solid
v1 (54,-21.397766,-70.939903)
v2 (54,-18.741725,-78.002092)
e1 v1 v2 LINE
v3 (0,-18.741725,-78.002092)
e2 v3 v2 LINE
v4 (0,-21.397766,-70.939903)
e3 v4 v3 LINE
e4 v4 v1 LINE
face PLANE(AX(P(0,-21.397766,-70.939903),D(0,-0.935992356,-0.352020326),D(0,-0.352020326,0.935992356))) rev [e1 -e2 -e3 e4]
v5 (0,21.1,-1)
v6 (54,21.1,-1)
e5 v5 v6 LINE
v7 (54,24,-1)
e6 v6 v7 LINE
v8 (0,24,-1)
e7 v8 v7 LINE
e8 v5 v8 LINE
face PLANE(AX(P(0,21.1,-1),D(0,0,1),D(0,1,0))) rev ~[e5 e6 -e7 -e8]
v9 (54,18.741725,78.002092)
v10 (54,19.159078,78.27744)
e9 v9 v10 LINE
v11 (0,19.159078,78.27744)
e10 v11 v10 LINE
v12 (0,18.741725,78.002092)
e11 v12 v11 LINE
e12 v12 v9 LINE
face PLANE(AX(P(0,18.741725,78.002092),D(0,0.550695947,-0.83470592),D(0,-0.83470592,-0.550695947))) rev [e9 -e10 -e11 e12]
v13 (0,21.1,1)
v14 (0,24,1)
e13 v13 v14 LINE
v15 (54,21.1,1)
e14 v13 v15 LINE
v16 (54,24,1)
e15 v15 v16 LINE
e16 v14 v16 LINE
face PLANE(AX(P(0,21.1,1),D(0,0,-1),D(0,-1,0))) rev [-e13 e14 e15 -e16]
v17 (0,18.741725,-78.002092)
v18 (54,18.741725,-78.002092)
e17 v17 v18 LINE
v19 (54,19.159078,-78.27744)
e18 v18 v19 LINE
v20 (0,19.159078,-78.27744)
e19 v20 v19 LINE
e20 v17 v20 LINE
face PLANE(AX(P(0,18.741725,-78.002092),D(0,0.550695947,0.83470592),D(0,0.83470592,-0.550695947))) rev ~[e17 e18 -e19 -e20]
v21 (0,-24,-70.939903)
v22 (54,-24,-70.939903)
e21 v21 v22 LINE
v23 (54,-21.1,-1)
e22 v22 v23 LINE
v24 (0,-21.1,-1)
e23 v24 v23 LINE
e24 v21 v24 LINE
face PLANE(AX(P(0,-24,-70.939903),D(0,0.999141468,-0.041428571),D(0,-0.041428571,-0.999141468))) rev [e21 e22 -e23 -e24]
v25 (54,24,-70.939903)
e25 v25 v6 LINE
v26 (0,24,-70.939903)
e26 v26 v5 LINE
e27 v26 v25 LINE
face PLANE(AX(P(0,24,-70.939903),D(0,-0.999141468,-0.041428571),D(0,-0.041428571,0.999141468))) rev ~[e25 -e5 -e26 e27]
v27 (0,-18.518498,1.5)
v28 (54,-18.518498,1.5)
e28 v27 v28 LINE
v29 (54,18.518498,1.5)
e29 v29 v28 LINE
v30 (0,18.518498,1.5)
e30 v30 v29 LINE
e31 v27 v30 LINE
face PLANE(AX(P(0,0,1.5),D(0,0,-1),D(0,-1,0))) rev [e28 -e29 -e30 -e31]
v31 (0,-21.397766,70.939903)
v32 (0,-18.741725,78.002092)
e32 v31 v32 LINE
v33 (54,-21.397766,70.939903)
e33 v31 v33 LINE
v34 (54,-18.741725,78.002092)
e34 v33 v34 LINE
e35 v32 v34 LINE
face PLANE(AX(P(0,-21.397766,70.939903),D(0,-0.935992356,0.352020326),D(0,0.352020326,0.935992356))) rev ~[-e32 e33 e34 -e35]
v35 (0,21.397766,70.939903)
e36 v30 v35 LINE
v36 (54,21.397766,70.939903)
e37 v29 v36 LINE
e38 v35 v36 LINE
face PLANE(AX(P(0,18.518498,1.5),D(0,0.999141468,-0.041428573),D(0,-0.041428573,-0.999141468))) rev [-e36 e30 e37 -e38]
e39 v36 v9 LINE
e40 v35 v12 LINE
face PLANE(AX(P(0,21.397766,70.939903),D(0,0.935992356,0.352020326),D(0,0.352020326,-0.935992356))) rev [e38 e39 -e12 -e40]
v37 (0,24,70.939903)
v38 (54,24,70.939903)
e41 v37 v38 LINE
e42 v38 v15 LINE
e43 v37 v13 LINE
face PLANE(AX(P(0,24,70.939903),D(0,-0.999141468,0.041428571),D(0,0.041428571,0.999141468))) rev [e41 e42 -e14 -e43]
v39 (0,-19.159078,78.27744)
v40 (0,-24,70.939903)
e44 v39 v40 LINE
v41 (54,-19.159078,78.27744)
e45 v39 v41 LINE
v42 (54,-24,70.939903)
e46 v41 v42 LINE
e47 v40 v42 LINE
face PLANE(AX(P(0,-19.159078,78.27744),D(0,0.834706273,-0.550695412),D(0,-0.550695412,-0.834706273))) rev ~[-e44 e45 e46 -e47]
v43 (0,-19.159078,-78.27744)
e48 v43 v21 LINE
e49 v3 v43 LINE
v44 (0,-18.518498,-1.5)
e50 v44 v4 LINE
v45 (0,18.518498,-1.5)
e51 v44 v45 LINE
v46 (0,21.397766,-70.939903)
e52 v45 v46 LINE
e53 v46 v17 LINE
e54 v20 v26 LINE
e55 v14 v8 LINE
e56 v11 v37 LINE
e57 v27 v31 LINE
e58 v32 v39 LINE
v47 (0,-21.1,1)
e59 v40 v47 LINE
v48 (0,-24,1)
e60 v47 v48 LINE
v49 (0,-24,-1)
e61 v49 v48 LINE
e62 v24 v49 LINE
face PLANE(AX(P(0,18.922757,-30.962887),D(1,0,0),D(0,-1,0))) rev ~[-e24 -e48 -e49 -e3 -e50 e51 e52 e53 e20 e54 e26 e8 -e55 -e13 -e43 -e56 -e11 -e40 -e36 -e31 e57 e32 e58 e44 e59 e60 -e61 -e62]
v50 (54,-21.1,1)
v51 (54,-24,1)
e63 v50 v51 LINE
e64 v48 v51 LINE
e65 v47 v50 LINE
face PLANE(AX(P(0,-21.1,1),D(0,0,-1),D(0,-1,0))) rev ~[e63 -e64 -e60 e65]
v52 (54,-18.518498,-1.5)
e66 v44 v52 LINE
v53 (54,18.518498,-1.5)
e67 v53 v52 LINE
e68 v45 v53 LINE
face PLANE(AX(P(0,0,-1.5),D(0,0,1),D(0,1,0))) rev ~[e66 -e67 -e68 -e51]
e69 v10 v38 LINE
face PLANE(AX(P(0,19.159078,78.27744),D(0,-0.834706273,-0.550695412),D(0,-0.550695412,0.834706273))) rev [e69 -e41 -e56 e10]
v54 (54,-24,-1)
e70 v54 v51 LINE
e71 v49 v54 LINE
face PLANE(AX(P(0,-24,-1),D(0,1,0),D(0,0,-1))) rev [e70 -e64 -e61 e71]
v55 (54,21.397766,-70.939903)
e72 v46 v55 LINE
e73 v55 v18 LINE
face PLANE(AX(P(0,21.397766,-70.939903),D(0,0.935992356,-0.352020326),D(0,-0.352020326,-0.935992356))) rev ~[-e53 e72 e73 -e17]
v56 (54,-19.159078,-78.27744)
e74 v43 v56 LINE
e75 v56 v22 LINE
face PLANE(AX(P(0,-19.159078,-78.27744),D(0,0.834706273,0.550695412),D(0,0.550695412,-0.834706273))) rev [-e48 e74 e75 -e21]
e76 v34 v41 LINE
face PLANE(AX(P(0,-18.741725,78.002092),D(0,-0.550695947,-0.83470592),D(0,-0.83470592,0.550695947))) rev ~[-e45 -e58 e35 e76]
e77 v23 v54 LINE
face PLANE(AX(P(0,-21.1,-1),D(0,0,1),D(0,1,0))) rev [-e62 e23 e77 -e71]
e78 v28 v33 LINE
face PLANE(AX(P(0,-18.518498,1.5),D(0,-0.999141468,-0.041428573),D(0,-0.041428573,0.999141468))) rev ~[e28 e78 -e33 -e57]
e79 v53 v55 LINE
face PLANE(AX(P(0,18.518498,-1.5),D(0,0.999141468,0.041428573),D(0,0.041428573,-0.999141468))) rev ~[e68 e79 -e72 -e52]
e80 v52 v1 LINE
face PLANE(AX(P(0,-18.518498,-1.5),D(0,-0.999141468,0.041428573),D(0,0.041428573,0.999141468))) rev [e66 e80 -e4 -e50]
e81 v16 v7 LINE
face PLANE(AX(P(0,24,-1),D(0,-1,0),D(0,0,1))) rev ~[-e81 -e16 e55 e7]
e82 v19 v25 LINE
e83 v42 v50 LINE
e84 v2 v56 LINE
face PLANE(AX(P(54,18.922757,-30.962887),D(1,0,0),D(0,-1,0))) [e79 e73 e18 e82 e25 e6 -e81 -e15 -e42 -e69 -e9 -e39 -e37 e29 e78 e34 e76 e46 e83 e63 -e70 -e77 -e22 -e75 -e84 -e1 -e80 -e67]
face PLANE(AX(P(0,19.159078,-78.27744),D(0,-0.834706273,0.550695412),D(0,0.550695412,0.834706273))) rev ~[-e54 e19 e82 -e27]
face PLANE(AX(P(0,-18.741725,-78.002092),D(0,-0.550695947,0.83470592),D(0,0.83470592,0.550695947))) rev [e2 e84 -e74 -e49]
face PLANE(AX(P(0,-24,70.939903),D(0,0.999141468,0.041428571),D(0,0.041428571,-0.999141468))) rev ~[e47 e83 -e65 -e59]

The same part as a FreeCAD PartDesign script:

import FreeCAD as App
import Part
import Sketcher

V = App.Vector

doc = App.newDocument("Part")
params = doc.addObject("Spreadsheet::Sheet", "Params")
for row, (alias, value) in enumerate([
    ("sketch1_width", "24 mm"),
    ("sketch1_height", "1 mm"),
    ("sketch1_length", "70 mm"),
    ("sketch1_width2", "2.9 mm"),
    ("sketch1_height2", "1.5 mm"),
    ("pad1_length", "54 mm"),
], start=1):
    params.set(f"A{row}", alias)
    params.set(f"B{row}", "=" + value)
    params.setAlias(f"B{row}", alias)

body = doc.addObject("PartDesign::Body", "Body")

sketch1 = body.newObject("Sketcher::SketchObject", "Sketch")
sketch1.AttachmentSupport = (doc.getObject("YZ_Plane"), [""])
sketch1.MapMode = "FlatFace"
sketch1.addGeometry([
    Part.LineSegment(V(-24, 0, 0), V(0, 0, 0)),
    Part.LineSegment(V(0, 0, 0), V(0, 1.5, 0)),
    Part.LineSegment(V(0, 1.5, 0), V(-18.5, 1.5, 0)),
    Part.LineSegment(V(-18.5, 1.5, 0), V(-21.4, 70.9, 0)),
    Part.LineSegment(V(-21.4, 70.9, 0), V(-18.7, 78, 0)),
    Part.LineSegment(V(-18.7, 78, 0), V(-19.2, 78.3, 0)),
    Part.LineSegment(V(-19.2, 78.3, 0), V(-24, 70.9, 0)),
    Part.LineSegment(V(-24, 70.9, 0), V(-21.1, 1, 0)),
    Part.LineSegment(V(-21.1, 1, 0), V(-24, 1, 0)),
    Part.LineSegment(V(-24, 1, 0), V(-24, 0, 0)),
], False)
sketch1.addConstraint([
    Sketcher.Constraint("Coincident", 0, 2, 1, 1),
    Sketcher.Constraint("Coincident", 1, 2, 2, 1),
    Sketcher.Constraint("Coincident", 2, 2, 3, 1),
    Sketcher.Constraint("Coincident", 3, 2, 4, 1),
    Sketcher.Constraint("Coincident", 4, 2, 5, 1),
    Sketcher.Constraint("Coincident", 5, 2, 6, 1),
    Sketcher.Constraint("Coincident", 6, 2, 7, 1),
    Sketcher.Constraint("Coincident", 7, 2, 8, 1),
    Sketcher.Constraint("Coincident", 8, 2, 9, 1),
    Sketcher.Constraint("Coincident", 9, 2, 0, 1),
    Sketcher.Constraint("Horizontal", 0),
    Sketcher.Constraint("Vertical", 1),
    Sketcher.Constraint("Horizontal", 2),
    Sketcher.Constraint("Horizontal", 8),
    Sketcher.Constraint("Vertical", 9),
    Sketcher.Constraint("Coincident", 0, 2, -1, 1),
    Sketcher.Constraint("Perpendicular", 5, 6),
    Sketcher.Constraint("Parallel", 3, 7),
    Sketcher.Constraint("Horizontal", 3, 2, 6, 2),
    Sketcher.Constraint("Vertical", 6, 2, 8, 2),
    Sketcher.Constraint("DistanceX", 0, 1, 0, 2, 24.0),
    Sketcher.Constraint("DistanceY", 9, 2, 9, 1, 1.0),
    Sketcher.Constraint("Distance", 7, 70.0),
    Sketcher.Constraint("DistanceX", 8, 2, 8, 1, 2.9),
    Sketcher.Constraint("DistanceY", 1, 1, 1, 2, 1.5),
    Sketcher.Constraint("Distance", 5, 0.5),
    Sketcher.Constraint("DistanceX", 2, 2, 2, 1, 18.518498),
    Sketcher.Constraint("Distance", 6, 8.790562),
    Sketcher.Constraint("DistanceX", 5, 2, -1, 1, 19.159078),
])
sketch1.setExpression("Constraints[20]", "Params.sketch1_width")
sketch1.setExpression("Constraints[21]", "Params.sketch1_height")
sketch1.setExpression("Constraints[22]", "Params.sketch1_length")
sketch1.setExpression("Constraints[23]", "Params.sketch1_width2")
sketch1.setExpression("Constraints[24]", "Params.sketch1_height2")
pad1 = body.newObject("PartDesign::Pad", "Pad")
pad1.Profile = sketch1
pad1.setExpression("Length", "Params.pad1_length")
body2 = doc.addObject("PartDesign::Body", "Body001")
doc.recompute()

body2.BaseFeature = body
doc.recompute()

mirroring = doc.addObject("Part::Mirroring", "Mirroring")
mirroring.Source = body
mirroring.Base = V(0, 0, 0)
mirroring.Normal = V(0, -1, 0)
body3 = doc.addObject("PartDesign::Body", "Body002")
body3.BaseFeature = mirroring
boolean = body2.newObject("PartDesign::Boolean", "Boolean")
boolean.Type = "Fuse"
boolean.addObjects([body3])
doc.recompute()
body4 = doc.addObject("PartDesign::Body", "Body003")
doc.recompute()

body4.BaseFeature = body2
doc.recompute()

mirroring2 = doc.addObject("Part::Mirroring", "Mirroring001")
mirroring2.Source = body2
mirroring2.Base = V(0, 0, 0)
mirroring2.Normal = V(0, 0, 1)
body5 = doc.addObject("PartDesign::Body", "Body004")
body5.BaseFeature = mirroring2
boolean2 = body4.newObject("PartDesign::Boolean", "Boolean001")
boolean2.Type = "Fuse"
boolean2.addObjects([body5])
doc.recompute()
mirroring.Visibility = False
mirroring2.Visibility = False

doc.recompute()
